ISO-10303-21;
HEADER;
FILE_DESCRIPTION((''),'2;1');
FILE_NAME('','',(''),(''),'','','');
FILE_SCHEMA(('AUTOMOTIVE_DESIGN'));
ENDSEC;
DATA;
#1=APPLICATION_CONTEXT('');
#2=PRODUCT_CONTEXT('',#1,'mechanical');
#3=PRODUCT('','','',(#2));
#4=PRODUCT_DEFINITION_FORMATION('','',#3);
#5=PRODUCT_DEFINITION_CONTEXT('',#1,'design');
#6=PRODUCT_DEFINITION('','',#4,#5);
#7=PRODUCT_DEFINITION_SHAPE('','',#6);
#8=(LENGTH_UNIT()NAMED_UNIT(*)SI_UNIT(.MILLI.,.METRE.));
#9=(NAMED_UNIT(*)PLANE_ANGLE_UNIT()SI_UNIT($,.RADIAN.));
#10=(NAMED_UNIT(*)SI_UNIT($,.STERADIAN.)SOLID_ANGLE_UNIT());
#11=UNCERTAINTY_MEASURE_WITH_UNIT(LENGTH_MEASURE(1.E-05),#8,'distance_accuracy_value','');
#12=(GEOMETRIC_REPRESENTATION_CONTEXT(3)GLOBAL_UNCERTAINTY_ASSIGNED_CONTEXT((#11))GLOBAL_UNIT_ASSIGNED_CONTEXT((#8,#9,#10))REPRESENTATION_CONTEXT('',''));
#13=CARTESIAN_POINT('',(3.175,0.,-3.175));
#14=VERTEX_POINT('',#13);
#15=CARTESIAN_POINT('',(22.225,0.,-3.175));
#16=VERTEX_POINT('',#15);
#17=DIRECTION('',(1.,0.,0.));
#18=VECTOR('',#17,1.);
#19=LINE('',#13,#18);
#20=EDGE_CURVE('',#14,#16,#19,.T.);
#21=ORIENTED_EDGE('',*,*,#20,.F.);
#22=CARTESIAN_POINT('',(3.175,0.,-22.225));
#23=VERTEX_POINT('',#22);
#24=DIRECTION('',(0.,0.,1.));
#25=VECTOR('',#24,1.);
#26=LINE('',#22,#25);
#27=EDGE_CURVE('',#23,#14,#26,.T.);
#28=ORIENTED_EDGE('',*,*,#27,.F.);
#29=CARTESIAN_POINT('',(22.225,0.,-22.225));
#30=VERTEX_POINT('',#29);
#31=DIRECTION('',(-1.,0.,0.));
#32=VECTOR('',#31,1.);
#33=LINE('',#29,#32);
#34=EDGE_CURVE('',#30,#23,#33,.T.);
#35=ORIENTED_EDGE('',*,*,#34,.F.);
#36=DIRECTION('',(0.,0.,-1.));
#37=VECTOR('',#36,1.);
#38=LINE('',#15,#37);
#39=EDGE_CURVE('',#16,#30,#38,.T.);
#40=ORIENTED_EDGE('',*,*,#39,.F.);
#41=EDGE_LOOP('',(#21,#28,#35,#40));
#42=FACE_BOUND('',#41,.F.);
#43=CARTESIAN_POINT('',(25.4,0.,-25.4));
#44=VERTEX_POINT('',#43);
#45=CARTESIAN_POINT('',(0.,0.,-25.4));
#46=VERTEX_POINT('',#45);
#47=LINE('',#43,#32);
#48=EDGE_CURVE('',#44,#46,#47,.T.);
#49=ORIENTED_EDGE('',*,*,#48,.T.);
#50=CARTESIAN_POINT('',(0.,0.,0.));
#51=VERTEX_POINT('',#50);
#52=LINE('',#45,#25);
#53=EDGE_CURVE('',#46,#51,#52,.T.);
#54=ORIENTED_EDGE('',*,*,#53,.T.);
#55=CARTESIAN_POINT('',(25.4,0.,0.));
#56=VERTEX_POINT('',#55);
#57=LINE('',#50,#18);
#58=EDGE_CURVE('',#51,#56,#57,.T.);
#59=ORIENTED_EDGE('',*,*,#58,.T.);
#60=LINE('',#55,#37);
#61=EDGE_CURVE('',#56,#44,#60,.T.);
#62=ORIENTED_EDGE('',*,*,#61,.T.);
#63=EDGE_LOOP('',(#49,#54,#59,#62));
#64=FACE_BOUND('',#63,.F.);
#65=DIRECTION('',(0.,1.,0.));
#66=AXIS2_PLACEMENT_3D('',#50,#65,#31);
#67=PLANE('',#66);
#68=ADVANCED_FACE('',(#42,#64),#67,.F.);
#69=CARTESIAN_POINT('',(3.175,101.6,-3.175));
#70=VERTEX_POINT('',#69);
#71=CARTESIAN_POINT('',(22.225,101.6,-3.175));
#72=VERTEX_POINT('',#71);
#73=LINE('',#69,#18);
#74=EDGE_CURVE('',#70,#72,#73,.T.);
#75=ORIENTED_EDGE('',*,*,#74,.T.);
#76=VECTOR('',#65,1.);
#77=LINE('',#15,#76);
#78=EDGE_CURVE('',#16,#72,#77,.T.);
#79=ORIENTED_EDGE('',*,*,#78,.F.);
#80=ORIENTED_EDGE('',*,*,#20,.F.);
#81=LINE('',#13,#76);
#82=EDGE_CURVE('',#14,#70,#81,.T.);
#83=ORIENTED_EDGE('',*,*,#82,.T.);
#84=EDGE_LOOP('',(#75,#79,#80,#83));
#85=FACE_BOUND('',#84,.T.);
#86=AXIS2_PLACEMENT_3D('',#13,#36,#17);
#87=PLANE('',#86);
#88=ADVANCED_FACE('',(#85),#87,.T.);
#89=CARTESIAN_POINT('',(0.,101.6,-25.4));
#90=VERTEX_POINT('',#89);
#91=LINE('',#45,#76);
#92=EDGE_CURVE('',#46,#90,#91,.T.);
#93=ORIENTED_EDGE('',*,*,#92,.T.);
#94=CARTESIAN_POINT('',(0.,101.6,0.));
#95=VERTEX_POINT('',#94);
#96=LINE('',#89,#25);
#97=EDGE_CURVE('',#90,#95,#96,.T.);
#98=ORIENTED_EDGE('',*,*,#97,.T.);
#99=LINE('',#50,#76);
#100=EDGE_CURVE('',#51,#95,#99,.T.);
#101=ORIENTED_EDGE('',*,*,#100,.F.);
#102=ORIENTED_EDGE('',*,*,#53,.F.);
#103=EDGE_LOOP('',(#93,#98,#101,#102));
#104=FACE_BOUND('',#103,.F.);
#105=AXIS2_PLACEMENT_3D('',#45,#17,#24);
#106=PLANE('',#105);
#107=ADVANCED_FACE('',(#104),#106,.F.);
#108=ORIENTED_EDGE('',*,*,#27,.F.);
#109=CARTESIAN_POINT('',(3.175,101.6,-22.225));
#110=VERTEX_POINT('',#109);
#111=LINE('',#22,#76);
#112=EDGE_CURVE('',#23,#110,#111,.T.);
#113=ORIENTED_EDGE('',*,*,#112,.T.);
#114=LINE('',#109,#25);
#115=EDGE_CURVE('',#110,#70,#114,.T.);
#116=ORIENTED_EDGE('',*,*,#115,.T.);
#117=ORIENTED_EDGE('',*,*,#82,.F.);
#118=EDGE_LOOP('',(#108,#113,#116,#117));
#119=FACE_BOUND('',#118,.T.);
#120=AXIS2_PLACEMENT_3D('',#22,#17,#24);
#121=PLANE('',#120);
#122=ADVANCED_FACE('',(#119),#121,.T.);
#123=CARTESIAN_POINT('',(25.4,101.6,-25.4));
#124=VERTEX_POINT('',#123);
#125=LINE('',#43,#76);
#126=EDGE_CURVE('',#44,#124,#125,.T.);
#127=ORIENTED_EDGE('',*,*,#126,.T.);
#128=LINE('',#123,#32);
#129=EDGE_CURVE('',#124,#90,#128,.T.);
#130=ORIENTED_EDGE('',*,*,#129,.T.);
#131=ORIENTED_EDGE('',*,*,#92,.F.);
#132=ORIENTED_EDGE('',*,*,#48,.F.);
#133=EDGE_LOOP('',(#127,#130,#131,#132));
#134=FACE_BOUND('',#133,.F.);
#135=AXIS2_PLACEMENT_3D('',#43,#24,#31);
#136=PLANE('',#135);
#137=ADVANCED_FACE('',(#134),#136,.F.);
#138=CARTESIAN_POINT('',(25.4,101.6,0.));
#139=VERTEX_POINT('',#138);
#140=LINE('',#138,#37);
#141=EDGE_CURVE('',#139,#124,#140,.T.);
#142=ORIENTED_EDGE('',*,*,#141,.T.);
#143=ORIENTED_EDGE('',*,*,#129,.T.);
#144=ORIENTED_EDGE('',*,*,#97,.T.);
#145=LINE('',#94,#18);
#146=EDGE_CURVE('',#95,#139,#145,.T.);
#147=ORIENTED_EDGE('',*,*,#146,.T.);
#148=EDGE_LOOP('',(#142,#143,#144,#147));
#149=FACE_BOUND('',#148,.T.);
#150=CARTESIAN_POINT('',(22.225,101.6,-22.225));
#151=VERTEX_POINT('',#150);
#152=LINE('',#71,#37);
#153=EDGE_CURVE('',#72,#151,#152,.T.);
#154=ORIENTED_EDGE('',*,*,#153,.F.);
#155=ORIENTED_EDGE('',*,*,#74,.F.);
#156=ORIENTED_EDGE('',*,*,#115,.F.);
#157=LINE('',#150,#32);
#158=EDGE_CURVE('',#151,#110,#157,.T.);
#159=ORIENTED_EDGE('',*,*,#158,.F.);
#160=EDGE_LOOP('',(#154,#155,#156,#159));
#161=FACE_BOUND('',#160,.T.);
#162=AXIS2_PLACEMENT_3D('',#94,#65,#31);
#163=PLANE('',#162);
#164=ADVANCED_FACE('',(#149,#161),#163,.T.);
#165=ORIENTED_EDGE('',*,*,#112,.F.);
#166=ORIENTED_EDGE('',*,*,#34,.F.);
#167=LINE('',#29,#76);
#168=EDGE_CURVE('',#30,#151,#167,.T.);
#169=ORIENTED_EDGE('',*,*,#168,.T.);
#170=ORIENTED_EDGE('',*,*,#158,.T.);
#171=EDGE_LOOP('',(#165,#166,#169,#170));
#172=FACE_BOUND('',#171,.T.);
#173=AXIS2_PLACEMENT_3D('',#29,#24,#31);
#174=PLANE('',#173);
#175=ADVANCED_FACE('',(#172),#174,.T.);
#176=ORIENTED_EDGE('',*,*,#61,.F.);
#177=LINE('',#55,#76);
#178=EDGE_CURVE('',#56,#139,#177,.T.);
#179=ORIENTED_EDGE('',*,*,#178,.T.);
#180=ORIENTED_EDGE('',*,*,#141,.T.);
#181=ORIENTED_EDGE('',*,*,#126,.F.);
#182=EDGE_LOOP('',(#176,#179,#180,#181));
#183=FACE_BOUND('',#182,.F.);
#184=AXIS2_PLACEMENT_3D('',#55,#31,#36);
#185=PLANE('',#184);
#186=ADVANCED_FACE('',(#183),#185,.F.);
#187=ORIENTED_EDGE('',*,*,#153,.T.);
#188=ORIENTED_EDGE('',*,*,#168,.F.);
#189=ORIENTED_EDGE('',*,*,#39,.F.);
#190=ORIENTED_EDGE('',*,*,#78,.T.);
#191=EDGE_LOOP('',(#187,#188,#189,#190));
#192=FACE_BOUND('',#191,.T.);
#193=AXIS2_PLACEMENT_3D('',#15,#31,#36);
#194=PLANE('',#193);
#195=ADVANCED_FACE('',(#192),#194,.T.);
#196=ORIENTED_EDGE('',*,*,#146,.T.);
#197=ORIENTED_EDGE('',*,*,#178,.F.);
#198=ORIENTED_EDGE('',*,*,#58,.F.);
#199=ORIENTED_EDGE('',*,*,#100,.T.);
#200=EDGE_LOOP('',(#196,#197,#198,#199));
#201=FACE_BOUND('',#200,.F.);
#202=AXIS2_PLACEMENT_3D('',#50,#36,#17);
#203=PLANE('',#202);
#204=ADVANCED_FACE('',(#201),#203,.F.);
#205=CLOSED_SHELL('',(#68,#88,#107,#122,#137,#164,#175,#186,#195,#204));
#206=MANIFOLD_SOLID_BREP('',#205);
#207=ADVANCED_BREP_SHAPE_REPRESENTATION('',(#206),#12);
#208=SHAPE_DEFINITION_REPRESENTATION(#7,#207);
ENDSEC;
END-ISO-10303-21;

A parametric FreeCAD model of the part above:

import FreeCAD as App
import Part
import Sketcher
from FreeCAD import Vector
Q = App.Units.Quantity

doc = App.newDocument("Part")
body = doc.addObject("PartDesign::Body", "Body")

# Sketch on XZ plane
sketch1 = body.newObject("Sketcher::SketchObject", "Sketch")
sketch1.AttachmentSupport = (doc.getObject("XZ_Plane"), [""])
sketch1.MapMode = "FlatFace"
sketch1.addGeometry([
    Part.LineSegment(Vector(0, -25, 0), Vector(0, 0, 0)),  # 0
    Part.LineSegment(Vector(0, 0, 0), Vector(25, 0, 0)),  # 1
    Part.LineSegment(Vector(25, 0, 0), Vector(25, -25, 0)),  # 2
    Part.LineSegment(Vector(25, -25, 0), Vector(0, -25, 0)),  # 3
    Part.LineSegment(Vector(22, -3, 0), Vector(3, -3, 0)),  # 4
    Part.LineSegment(Vector(3, -3, 0), Vector(3, -22, 0)),  # 5
    Part.LineSegment(Vector(3, -22, 0), Vector(22, -22, 0)),  # 6
    Part.LineSegment(Vector(22, -22, 0), Vector(22, -3, 0)),  # 7
], False)
sketch1.addConstraint([
    Sketcher.Constraint("Coincident", 0, 2, 1, 1),
    Sketcher.Constraint("Coincident", 1, 2, 2, 1),
    Sketcher.Constraint("Coincident", 2, 2, 3, 1),
    Sketcher.Constraint("Coincident", 3, 2, 0, 1),
    Sketcher.Constraint("Coincident", 4, 2, 5, 1),
    Sketcher.Constraint("Coincident", 5, 2, 6, 1),
    Sketcher.Constraint("Coincident", 6, 2, 7, 1),
    Sketcher.Constraint("Coincident", 7, 2, 4, 1),
    Sketcher.Constraint("Vertical", 0),
    Sketcher.Constraint("Horizontal", 1),
    Sketcher.Constraint("Vertical", 2),
    Sketcher.Constraint("Horizontal", 3),
    Sketcher.Constraint("Horizontal", 4),
    Sketcher.Constraint("Vertical", 5),
    Sketcher.Constraint("Horizontal", 6),
    Sketcher.Constraint("Vertical", 7),
    Sketcher.Constraint("Coincident", 0, 2, -1, 1),
    Sketcher.Constraint("Equal", 3, 0),
    Sketcher.Constraint("Equal", 6, 5),
    Sketcher.Constraint("DistanceX", 1, 1, 1, 2, Q("1 in")),
    Sketcher.Constraint("DistanceX", -1, 1, 4, 2, Q("0.125 in")),
    Sketcher.Constraint("DistanceY", 4, 2, -1, 1, Q("0.125 in")),
    Sketcher.Constraint("DistanceY", 3, 2, 5, 2, Q("0.125 in")),
])
pad1 = body.newObject("PartDesign::Pad", "Pad")
pad1.Profile = sketch1
pad1.Length = Q("4 in")
pad1.Reversed = True

doc.recompute()
